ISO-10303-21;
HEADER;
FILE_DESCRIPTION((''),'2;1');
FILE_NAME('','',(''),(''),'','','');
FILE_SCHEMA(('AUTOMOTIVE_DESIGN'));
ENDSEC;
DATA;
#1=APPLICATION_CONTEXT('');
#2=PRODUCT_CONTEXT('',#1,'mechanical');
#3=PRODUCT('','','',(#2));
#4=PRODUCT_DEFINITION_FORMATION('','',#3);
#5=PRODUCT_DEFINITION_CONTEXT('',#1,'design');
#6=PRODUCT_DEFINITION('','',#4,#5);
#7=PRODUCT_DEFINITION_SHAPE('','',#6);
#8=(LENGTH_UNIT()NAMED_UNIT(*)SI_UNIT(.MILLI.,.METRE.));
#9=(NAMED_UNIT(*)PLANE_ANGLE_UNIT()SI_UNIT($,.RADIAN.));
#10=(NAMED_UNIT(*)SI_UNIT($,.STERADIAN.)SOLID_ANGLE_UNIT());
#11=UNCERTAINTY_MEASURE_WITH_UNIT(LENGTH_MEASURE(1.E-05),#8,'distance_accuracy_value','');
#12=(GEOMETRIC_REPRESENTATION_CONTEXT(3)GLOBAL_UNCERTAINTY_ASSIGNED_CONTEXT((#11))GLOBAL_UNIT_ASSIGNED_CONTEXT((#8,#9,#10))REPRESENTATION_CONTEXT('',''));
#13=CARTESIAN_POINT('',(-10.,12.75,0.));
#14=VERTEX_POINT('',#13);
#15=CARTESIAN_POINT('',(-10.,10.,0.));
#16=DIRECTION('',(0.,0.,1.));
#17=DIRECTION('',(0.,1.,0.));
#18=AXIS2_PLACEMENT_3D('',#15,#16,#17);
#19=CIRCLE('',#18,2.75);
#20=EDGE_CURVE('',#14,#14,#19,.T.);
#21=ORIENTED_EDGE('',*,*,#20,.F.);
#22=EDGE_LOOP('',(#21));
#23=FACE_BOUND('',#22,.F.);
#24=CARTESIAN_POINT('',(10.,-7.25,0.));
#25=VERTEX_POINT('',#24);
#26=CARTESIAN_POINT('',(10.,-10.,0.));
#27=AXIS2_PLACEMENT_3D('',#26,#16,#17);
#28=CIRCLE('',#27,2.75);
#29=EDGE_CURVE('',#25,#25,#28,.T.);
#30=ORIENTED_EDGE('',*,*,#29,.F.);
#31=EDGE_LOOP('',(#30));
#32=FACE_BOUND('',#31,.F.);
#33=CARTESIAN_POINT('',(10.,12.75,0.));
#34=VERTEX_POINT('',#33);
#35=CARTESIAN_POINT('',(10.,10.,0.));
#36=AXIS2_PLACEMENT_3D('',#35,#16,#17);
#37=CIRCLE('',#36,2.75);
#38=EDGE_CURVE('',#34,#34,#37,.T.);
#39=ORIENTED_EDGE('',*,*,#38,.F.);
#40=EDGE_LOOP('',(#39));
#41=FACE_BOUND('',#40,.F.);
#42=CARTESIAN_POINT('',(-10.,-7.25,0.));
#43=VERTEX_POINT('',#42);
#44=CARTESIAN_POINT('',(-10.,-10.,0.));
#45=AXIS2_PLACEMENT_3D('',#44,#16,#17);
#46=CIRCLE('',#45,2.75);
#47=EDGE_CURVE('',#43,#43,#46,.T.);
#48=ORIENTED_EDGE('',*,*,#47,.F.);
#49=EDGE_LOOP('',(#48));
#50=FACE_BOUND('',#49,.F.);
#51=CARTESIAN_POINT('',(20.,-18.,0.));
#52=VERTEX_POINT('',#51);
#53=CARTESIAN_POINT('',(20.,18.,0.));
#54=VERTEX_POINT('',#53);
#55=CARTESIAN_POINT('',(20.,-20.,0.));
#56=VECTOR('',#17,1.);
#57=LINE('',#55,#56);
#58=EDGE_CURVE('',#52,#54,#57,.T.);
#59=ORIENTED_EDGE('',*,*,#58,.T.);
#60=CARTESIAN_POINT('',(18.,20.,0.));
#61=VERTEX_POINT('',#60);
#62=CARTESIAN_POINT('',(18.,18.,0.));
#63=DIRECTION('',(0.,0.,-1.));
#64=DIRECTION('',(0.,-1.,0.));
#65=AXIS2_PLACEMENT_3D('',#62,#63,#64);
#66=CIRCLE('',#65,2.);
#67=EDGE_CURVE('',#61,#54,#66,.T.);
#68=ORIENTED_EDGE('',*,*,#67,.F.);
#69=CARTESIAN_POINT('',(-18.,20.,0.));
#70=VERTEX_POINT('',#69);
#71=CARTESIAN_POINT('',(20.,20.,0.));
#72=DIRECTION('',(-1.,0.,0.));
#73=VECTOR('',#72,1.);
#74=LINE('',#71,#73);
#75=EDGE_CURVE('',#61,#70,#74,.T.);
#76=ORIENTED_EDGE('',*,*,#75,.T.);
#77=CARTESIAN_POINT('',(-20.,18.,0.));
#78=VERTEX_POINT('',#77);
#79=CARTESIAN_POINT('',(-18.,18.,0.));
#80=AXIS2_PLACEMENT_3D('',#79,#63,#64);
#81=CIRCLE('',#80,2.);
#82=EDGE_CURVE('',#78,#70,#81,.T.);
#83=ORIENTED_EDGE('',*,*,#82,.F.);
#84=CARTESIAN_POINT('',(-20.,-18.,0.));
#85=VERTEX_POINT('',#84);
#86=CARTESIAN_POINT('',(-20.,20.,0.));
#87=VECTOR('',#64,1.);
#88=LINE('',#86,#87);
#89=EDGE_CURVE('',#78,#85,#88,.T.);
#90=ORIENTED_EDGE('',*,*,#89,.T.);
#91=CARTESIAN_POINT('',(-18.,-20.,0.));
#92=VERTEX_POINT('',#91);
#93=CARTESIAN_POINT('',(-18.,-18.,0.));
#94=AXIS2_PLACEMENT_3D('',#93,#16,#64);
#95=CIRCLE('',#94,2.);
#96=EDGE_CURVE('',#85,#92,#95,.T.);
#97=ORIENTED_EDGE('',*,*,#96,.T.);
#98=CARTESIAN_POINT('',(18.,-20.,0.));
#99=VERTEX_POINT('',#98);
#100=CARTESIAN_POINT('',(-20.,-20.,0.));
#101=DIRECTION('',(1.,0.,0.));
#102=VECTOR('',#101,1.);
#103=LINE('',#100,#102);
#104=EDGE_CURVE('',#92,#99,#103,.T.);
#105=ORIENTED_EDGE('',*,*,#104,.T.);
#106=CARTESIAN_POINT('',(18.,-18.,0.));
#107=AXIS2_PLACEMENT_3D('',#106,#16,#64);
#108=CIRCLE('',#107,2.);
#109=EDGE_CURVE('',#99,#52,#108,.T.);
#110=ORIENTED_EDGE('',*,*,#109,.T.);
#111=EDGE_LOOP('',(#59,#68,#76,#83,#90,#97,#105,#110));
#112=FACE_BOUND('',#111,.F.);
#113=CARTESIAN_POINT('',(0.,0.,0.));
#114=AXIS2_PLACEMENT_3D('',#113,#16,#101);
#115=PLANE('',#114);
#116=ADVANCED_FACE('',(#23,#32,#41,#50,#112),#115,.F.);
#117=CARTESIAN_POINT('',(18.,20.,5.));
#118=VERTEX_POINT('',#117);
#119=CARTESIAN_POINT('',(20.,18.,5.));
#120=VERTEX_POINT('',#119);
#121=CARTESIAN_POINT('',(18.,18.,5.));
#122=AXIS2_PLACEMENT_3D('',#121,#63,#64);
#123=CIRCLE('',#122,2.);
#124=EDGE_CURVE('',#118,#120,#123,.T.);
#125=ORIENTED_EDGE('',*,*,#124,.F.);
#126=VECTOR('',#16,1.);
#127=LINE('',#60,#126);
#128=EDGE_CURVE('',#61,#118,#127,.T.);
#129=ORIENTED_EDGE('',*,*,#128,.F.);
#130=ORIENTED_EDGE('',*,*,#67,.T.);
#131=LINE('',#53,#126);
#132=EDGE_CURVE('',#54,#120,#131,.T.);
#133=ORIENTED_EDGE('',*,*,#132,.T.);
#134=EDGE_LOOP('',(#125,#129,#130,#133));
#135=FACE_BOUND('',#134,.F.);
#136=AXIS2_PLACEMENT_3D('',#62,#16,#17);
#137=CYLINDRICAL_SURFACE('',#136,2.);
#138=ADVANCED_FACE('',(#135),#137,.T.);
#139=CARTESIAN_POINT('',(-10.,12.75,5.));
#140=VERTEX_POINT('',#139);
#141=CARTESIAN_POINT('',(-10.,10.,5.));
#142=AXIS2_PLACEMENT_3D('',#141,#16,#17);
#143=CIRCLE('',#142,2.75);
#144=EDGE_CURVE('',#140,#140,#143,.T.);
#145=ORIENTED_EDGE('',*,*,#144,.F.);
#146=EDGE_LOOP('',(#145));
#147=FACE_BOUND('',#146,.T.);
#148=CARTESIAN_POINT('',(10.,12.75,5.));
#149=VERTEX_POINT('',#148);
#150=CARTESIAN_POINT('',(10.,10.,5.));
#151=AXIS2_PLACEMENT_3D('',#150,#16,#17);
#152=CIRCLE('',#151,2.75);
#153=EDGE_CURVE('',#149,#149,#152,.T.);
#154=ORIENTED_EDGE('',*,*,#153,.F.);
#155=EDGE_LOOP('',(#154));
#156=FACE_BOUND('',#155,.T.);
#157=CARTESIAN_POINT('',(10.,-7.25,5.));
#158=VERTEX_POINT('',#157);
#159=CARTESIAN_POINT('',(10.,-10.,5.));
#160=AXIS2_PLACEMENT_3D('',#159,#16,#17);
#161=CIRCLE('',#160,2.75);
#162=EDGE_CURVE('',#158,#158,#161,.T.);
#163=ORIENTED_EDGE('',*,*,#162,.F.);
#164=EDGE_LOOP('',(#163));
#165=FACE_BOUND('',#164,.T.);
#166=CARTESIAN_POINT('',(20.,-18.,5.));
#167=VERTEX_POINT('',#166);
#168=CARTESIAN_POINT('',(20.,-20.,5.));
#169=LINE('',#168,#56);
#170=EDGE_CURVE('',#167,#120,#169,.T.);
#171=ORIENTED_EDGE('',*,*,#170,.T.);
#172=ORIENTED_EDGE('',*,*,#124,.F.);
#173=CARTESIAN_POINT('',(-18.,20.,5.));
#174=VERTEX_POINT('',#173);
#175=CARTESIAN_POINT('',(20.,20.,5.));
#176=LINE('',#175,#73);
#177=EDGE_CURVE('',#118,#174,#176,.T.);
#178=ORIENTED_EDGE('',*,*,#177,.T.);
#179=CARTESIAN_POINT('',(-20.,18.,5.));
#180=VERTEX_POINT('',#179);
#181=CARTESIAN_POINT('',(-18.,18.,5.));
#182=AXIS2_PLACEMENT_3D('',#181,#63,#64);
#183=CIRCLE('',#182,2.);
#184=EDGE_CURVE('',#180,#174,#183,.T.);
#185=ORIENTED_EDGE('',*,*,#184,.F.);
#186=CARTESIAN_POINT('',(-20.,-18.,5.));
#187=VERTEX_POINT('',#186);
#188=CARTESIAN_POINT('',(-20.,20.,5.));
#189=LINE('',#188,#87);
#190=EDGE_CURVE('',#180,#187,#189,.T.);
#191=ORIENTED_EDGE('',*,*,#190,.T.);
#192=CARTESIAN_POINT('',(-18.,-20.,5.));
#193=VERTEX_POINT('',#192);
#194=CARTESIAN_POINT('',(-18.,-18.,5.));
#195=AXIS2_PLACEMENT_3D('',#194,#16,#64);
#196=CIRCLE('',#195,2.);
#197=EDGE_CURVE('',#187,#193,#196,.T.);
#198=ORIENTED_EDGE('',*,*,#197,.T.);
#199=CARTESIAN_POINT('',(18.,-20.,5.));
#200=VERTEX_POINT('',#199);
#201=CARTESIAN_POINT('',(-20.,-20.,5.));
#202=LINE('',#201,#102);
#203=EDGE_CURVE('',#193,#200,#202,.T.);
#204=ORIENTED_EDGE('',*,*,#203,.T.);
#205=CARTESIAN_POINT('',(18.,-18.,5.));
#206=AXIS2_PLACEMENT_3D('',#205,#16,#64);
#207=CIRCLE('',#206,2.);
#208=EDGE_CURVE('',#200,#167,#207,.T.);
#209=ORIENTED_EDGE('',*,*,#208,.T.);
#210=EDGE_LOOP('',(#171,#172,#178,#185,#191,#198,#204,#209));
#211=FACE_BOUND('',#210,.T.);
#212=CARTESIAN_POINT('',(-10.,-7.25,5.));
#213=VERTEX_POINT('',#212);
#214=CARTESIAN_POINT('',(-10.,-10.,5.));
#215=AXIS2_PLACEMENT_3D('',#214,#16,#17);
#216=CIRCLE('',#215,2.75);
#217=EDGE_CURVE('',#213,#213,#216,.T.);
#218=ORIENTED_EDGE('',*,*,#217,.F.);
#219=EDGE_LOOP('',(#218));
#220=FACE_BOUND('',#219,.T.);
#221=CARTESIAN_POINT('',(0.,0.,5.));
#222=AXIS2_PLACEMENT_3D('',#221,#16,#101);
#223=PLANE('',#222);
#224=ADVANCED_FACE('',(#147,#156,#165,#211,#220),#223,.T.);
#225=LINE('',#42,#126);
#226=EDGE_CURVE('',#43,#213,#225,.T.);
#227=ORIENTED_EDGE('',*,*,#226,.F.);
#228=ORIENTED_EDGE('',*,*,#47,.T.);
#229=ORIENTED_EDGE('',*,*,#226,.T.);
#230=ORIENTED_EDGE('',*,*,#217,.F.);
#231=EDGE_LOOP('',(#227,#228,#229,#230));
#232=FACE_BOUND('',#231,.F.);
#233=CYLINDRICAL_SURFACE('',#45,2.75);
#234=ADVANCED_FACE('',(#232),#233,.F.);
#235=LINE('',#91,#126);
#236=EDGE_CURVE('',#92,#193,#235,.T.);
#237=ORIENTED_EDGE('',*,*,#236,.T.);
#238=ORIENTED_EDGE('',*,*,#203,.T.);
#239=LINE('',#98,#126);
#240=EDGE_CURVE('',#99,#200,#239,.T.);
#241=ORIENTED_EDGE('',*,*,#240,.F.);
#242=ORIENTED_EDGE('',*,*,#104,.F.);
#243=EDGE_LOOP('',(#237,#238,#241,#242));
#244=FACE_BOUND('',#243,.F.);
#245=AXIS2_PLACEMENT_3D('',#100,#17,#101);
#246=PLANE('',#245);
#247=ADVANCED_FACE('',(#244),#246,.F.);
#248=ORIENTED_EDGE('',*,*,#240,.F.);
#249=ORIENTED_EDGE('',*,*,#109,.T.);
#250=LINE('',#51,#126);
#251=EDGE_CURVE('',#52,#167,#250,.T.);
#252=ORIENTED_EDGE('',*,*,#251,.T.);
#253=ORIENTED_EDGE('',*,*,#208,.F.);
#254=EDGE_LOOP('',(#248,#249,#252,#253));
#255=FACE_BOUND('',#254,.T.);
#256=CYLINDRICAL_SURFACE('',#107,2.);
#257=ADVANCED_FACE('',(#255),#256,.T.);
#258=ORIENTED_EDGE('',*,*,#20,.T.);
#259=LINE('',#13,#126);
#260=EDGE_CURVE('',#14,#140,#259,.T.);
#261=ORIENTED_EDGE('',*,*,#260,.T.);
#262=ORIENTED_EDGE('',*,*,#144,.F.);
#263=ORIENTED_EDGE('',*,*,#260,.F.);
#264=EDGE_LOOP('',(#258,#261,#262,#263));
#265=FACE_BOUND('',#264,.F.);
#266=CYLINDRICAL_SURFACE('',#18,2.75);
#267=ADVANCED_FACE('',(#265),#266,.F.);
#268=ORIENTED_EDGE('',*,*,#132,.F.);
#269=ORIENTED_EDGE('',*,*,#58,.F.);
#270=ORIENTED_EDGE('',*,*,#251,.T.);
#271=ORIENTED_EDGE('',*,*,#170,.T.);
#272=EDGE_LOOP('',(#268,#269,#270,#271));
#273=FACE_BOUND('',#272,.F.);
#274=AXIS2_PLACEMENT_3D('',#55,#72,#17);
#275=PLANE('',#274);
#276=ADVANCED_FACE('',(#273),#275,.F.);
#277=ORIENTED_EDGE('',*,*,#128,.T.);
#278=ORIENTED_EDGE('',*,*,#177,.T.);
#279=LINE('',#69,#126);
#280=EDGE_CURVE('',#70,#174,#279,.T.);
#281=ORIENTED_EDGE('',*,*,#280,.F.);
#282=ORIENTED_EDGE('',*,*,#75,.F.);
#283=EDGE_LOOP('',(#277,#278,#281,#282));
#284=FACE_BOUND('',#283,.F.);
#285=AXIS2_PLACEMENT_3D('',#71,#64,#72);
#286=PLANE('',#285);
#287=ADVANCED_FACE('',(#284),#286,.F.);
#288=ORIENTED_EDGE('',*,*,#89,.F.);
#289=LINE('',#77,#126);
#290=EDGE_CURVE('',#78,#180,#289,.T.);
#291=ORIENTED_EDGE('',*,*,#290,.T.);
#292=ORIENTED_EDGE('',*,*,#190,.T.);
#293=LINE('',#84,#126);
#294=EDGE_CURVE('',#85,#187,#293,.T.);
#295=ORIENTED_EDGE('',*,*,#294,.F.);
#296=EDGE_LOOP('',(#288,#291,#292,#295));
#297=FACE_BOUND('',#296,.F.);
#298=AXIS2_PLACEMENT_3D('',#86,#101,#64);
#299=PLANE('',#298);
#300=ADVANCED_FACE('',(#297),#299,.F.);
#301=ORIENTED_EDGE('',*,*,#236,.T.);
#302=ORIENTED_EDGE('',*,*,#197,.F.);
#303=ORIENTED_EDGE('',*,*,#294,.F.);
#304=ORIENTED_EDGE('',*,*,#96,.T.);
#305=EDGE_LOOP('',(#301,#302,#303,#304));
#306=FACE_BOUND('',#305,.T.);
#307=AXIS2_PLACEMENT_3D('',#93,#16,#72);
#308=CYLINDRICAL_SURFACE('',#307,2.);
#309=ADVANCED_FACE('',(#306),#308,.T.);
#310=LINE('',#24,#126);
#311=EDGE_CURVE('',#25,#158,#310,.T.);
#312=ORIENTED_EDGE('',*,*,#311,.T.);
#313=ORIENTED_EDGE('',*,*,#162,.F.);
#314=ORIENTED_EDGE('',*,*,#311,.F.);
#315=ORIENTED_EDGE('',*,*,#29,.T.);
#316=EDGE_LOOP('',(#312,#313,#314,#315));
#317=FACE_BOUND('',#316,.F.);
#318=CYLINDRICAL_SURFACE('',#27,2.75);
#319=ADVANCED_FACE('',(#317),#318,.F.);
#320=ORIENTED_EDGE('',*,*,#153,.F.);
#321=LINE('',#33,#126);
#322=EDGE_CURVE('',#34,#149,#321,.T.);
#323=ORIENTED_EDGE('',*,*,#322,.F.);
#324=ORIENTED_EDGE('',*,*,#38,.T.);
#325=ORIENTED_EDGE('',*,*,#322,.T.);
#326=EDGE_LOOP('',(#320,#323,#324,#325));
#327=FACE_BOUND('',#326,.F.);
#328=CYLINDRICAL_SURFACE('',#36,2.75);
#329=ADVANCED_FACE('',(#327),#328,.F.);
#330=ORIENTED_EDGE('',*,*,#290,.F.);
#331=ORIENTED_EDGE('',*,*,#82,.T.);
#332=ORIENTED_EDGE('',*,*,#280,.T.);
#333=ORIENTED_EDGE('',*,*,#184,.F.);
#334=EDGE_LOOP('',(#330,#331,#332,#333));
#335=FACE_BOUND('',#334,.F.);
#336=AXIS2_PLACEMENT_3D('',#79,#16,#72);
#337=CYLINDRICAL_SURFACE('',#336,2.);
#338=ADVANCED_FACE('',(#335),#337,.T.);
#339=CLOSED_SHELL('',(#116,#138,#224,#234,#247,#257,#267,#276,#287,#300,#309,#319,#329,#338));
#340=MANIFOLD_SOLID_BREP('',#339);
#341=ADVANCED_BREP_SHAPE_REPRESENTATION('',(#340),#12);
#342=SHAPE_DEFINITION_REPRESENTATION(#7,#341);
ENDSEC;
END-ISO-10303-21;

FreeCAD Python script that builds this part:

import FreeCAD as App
import Part
import Sketcher


def edges_at(feature, points):
    """Names of the edges that pass closest to the given points."""
    edges = feature.Shape.Edges
    near = lambda p: min(range(len(edges)), key=lambda i: edges[i].distToShape(Part.Vertex(*p))[0])
    return sorted({f"Edge{near(p) + 1}" for p in points})


def add_polygon(sketch, points):
    """Adds a closed chain of lines whose ends are joined by coincident constraints."""
    first, n = sketch.GeometryCount, len(points)
    for a, b in zip(points, points[1:] + points[:1]):
        sketch.addGeometry(Part.LineSegment(App.Vector(*a, 0), App.Vector(*b, 0)), False)
    for i in range(n):
        sketch.addConstraint(Sketcher.Constraint("Coincident", first + i, 2, first + (i + 1) % n, 1))

doc = App.newDocument("Part")
body = doc.addObject("PartDesign::Body", "Body")

sketch1 = body.newObject("Sketcher::SketchObject", "Sketch")
sketch1.AttachmentSupport = (doc.getObject("XY_Plane"), [""])
sketch1.MapMode = "FlatFace"
add_polygon(sketch1, [(-20, 20), (-20, -20), (20, -20), (20, 20)])
sketch1.addConstraint([
    Sketcher.Constraint("Vertical", 0),
    Sketcher.Constraint("Horizontal", 1),
    Sketcher.Constraint("Vertical", 2),
    Sketcher.Constraint("Horizontal", 3),
    Sketcher.Constraint("Symmetric", 0, 2, 2, 2, -1, 1),
    Sketcher.Constraint("Equal", 3, 0),
    Sketcher.Constraint("DistanceX", 1, 1, 1, 2, 40.0),
])
pad1 = body.newObject("PartDesign::Pad", "Pad")
pad1.Profile = sketch1
pad1.Length = 5

sketch2 = body.newObject("Sketcher::SketchObject", "Sketch001")
sketch2.AttachmentSupport = (doc.getObject("XY_Plane"), [""])
sketch2.MapMode = "FlatFace"
sketch2.addGeometry([
    Part.Circle(App.Vector(-10, 10, 0), App.Vector(0, 0, 1), 2.8),
    Part.Circle(App.Vector(10, 10, 0), App.Vector(0, 0, 1), 2.8),
    Part.Circle(App.Vector(10, -10, 0), App.Vector(0, 0, 1), 2.8),
    Part.Circle(App.Vector(-10, -10, 0), App.Vector(0, 0, 1), 2.8),
], False)
sketch2.addConstraint([
    Sketcher.Constraint("Equal", 0, 1),
    Sketcher.Constraint("Equal", 1, 2),
    Sketcher.Constraint("Equal", 2, 3),
    Sketcher.Constraint("Symmetric", 0, 3, 2, 3, -1, 1),
    Sketcher.Constraint("Symmetric", 1, 3, 3, 3, -1, 1),
    Sketcher.Constraint("Symmetric", 0, 3, 1, 3, -2),
    Sketcher.Constraint("Diameter", 0, 5.5),
    Sketcher.Constraint("DistanceX", 0, 3, -1, 1, 10.0),
    Sketcher.Constraint("DistanceY", -1, 1, 0, 3, 10.0),
])
doc.recompute()
hole = body.newObject("PartDesign::Hole", "Hole")
hole.Profile = sketch2
hole.ThreadType = "None"
hole.Diameter = 5.5
hole.DepthType = "ThroughAll"
hole.Reversed = True
doc.recompute()

fillet = body.newObject("PartDesign::Fillet", "Fillet")
fillet.Base = (hole, edges_at(hole, [
    (20, 20, 2.5),
    (-20, 20, 2.5),
    (-20, -20, 2.5),
    (20, -20, 2.5),
]))
fillet.Radius = 2

doc.recompute()
